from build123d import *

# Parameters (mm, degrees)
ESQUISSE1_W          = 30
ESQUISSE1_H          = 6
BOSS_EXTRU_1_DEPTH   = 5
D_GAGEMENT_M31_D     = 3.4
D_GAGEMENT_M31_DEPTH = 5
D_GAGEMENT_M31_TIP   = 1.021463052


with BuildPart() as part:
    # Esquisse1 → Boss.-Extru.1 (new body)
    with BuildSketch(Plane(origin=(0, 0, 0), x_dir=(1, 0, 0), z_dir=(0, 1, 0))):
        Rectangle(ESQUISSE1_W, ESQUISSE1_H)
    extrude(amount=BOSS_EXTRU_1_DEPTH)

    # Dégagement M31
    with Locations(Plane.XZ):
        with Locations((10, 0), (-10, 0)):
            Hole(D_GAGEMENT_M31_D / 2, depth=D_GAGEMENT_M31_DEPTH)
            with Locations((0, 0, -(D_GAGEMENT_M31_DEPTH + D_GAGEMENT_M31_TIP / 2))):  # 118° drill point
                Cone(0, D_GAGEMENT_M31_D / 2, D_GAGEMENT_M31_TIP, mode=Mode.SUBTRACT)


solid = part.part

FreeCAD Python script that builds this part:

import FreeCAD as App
import Part
import Sketcher
from FreeCAD import Vector

doc = App.newDocument("Part")
body = doc.addObject("PartDesign::Body", "Body")

sketch1 = body.newObject("Sketcher::SketchObject", "Sketch")
sketch1.AttachmentSupport = (doc.getObject("XZ_Plane"), [""])
sketch1.MapMode = "FlatFace"
sketch1.addGeometry([
    Part.LineSegment(Vector(-15, -3, 0), Vector(-15, 3, 0)),
    Part.LineSegment(Vector(-15, 3, 0), Vector(15, 3, 0)),
    Part.LineSegment(Vector(15, 3, 0), Vector(15, -3, 0)),
    Part.LineSegment(Vector(15, -3, 0), Vector(-15, -3, 0)),
], False)
sketch1.addConstraint([
    Sketcher.Constraint("Coincident", 0, 2, 1, 1),
    Sketcher.Constraint("Coincident", 1, 2, 2, 1),
    Sketcher.Constraint("Coincident", 2, 2, 3, 1),
    Sketcher.Constraint("Coincident", 3, 2, 0, 1),
    Sketcher.Constraint("Vertical", 0),
    Sketcher.Constraint("Horizontal", 1),
    Sketcher.Constraint("Vertical", 2),
    Sketcher.Constraint("Horizontal", 3),
    Sketcher.Constraint("Symmetric", 0, 2, 2, 2, -1, 1),
    Sketcher.Constraint("DistanceX", 1, 1, 1, 2, 30.0),
    Sketcher.Constraint("DistanceY", 0, 1, 0, 2, 6.0),
])
pad1 = body.newObject("PartDesign::Pad", "Pad")
pad1.Profile = sketch1
pad1.Length = 5
pad1.Reversed = True

sketch2 = body.newObject("Sketcher::SketchObject", "Sketch001")
sketch2.AttachmentSupport = (doc.getObject("XZ_Plane"), [""])
sketch2.MapMode = "FlatFace"
sketch2.addGeometry([
    Part.Circle(Vector(10, 0, 0), Vector(0, 0, 1), 1.7),
    Part.Circle(Vector(-10, 0, 0), Vector(0, 0, 1), 1.7),
], False)
sketch2.addConstraint([
    Sketcher.Constraint("Equal", 0, 1),
    Sketcher.Constraint("Symmetric", 0, 3, 1, 3, -1, 1),
    Sketcher.Constraint("PointOnObject", 0, 3, -1),
    Sketcher.Constraint("Diameter", 0, 3.4),
    Sketcher.Constraint("DistanceX", -1, 1, 0, 3, 10.0),
])
doc.recompute()
hole = body.newObject("PartDesign::Hole", "Hole")
hole.Profile = sketch2
hole.ThreadType = "None"
hole.Diameter = 3.4
hole.DepthType = "Dimension"
hole.Depth = 5
hole.DrillPoint = "Angled"
hole.DrillPointAngle = 118

doc.recompute()
